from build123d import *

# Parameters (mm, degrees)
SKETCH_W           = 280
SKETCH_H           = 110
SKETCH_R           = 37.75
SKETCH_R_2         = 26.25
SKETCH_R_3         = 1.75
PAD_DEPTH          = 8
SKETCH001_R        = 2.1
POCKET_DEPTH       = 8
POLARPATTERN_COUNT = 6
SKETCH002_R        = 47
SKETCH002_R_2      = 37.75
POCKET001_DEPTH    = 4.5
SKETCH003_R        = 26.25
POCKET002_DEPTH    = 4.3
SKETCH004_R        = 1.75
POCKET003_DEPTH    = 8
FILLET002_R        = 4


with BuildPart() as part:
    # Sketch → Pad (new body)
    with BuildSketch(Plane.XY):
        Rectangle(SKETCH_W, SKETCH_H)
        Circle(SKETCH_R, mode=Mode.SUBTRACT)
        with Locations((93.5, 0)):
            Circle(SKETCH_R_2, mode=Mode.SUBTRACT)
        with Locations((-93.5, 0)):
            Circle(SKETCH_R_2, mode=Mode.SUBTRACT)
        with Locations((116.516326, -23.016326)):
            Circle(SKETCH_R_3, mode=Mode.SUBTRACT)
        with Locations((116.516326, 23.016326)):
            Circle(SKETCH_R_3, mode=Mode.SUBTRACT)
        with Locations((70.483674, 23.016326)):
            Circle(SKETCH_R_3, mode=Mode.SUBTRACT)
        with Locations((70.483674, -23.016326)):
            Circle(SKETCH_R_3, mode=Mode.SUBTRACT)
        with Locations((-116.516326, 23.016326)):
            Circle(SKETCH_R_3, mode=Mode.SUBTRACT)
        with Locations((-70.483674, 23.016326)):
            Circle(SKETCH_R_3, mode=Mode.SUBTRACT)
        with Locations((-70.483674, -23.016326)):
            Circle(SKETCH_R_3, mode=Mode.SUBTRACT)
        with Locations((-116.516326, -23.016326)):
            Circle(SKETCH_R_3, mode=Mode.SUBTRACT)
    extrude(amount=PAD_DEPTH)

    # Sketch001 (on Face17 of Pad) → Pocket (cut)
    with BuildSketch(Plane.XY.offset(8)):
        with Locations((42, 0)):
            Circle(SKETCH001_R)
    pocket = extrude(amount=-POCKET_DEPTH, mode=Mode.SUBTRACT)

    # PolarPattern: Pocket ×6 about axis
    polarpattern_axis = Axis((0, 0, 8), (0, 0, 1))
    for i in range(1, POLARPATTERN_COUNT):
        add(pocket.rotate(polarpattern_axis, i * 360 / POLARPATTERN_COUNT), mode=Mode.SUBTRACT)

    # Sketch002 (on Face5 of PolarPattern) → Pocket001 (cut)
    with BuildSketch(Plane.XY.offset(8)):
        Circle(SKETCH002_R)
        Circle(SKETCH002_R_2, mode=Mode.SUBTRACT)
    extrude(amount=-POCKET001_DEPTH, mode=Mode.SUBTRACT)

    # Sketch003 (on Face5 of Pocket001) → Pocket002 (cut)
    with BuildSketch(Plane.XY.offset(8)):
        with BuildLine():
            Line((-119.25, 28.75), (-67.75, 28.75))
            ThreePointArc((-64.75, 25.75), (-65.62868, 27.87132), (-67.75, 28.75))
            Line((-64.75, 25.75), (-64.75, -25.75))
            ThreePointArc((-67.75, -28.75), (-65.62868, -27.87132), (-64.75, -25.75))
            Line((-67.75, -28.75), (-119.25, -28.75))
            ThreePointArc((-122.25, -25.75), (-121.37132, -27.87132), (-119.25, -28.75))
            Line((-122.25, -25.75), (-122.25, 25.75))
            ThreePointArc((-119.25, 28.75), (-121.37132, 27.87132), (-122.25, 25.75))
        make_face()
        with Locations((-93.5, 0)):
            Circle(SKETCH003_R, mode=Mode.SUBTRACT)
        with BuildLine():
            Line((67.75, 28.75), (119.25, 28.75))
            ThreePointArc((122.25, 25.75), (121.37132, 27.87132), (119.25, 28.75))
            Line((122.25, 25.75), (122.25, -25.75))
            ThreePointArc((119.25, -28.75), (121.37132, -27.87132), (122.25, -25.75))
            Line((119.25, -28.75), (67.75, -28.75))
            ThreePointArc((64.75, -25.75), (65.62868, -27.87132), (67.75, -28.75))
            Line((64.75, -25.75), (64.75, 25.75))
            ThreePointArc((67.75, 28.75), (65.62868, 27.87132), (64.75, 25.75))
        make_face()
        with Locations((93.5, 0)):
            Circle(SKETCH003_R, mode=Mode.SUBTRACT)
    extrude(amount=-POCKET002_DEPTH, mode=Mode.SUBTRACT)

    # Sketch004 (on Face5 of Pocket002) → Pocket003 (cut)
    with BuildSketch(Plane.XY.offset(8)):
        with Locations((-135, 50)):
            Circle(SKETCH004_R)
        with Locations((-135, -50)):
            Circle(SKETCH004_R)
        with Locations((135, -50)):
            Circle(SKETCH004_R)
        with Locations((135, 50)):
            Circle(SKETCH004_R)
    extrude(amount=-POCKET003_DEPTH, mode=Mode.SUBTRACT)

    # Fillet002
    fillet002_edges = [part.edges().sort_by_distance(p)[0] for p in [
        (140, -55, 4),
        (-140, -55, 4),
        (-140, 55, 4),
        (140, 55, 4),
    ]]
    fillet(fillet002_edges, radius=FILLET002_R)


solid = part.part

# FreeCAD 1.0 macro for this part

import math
import FreeCAD as App
import Part
import Sketcher
from FreeCAD import Vector


def edges_at(feature, points):
    """Names of the edges that pass closest to the given points."""
    edges = feature.Shape.Edges
    near = lambda p: min(range(len(edges)), key=lambda i: edges[i].distToShape(Part.Vertex(*p))[0])
    return sorted({f"Edge{near(p) + 1}" for p in points})

doc = App.newDocument("Part")
body = doc.addObject("PartDesign::Body", "Body")

# Sketch on XY plane
sketch1 = body.newObject("Sketcher::SketchObject", "Sketch")
sketch1.AttachmentSupport = (doc.getObject("XY_Plane"), [""])
sketch1.MapMode = "FlatFace"
sketch1.addGeometry(Part.LineSegment(Vector(-140, 55, 0), Vector(-140, -55, 0)), False)
sketch1.addGeometry(Part.LineSegment(Vector(-140, -55, 0), Vector(140, -55, 0)), False)
sketch1.addGeometry(Part.LineSegment(Vector(140, -55, 0), Vector(140, 55, 0)), False)
sketch1.addGeometry(Part.LineSegment(Vector(140, 55, 0), Vector(-140, 55, 0)), False)
sketch1.addGeometry(Part.Circle(Vector(-116.5, -23, 0), Vector(0, 0, 1), 1.8), False)
sketch1.addGeometry(Part.Circle(Vector(-70.5, -23, 0), Vector(0, 0, 1), 1.8), False)
sketch1.addGeometry(Part.Circle(Vector(70.5, -23, 0), Vector(0, 0, 1), 1.8), False)
sketch1.addGeometry(Part.Circle(Vector(116.5, -23, 0), Vector(0, 0, 1), 1.8), False)
sketch1.addGeometry(Part.Circle(Vector(-93.5, 0, 0), Vector(0, 0, 1), 26.2), False)
sketch1.addGeometry(Part.Circle(Vector(0, 0, 0), Vector(0, 0, 1), 37.8), False)
sketch1.addGeometry(Part.Circle(Vector(-116.5, 23, 0), Vector(0, 0, 1), 1.8), False)
sketch1.addGeometry(Part.Circle(Vector(-70.5, 23, 0), Vector(0, 0, 1), 1.8), False)
sketch1.addGeometry(Part.Circle(Vector(93.5, 0, 0), Vector(0, 0, 1), 26.2), False)
sketch1.addGeometry(Part.Circle(Vector(70.5, 23, 0), Vector(0, 0, 1), 1.8), False)
sketch1.addGeometry(Part.Circle(Vector(116.5, 23, 0), Vector(0, 0, 1), 1.8), False)
sketch1.addConstraint(Sketcher.Constraint("Coincident", 0, 2, 1, 1))
sketch1.addConstraint(Sketcher.Constraint("Coincident", 1, 2, 2, 1))
sketch1.addConstraint(Sketcher.Constraint("Coincident", 2, 2, 3, 1))
sketch1.addConstraint(Sketcher.Constraint("Coincident", 3, 2, 0, 1))
sketch1.addConstraint(Sketcher.Constraint("Vertical", 0))
sketch1.addConstraint(Sketcher.Constraint("Horizontal", 1))
sketch1.addConstraint(Sketcher.Constraint("Vertical", 2))
sketch1.addConstraint(Sketcher.Constraint("Horizontal", 3))
sketch1.addConstraint(Sketcher.Constraint("Coincident", 9, 3, -1, 1))
sketch1.addConstraint(Sketcher.Constraint("Equal", 4, 5))
sketch1.addConstraint(Sketcher.Constraint("Equal", 5, 6))
sketch1.addConstraint(Sketcher.Constraint("Equal", 6, 7))
sketch1.addConstraint(Sketcher.Constraint("Equal", 7, 10))
sketch1.addConstraint(Sketcher.Constraint("Equal", 10, 11))
sketch1.addConstraint(Sketcher.Constraint("Equal", 8, 12))
sketch1.addConstraint(Sketcher.Constraint("Equal", 11, 13))
sketch1.addConstraint(Sketcher.Constraint("Equal", 13, 14))
sketch1.addConstraint(Sketcher.Constraint("Symmetric", 7, 3, 10, 3, -1, 1))
sketch1.addConstraint(Sketcher.Constraint("Symmetric", 6, 3, 11, 3, -1, 1))
sketch1.addConstraint(Sketcher.Constraint("Symmetric", 8, 3, 12, 3, -1, 1))
sketch1.addConstraint(Sketcher.Constraint("Symmetric", 5, 3, 13, 3, -1, 1))
sketch1.addConstraint(Sketcher.Constraint("Symmetric", 4, 3, 14, 3, -1, 1))
sketch1.addConstraint(Sketcher.Constraint("Symmetric", 0, 2, 2, 2, -1, 1))
sketch1.addConstraint(Sketcher.Constraint("Symmetric", 5, 3, 6, 3, -2))
sketch1.addConstraint(Sketcher.Constraint("Symmetric", 4, 3, 7, 3, -2))
sketch1.addConstraint(Sketcher.Constraint("PointOnObject", 8, 3, -1))
sketch1.addConstraint(Sketcher.Constraint("Horizontal", 4, 3, 5, 3))
sketch1.addConstraint(Sketcher.Constraint("Diameter", 4, 3.5))
sketch1.addConstraint(Sketcher.Constraint("Diameter", 8, 52.5))
sketch1.addConstraint(Sketcher.Constraint("Diameter", 9, 75.5))
sketch1.addConstraint(Sketcher.Constraint("DistanceX", 1, 1, 1, 2, 280.0))
sketch1.addConstraint(Sketcher.Constraint("DistanceY", 0, 2, 0, 1, 110.0))
sketch1.addConstraint(Sketcher.Constraint("DistanceX", 4, 3, 6, 3, 187.0))
sketch1.addConstraint(Sketcher.Constraint("DistanceX", 8, 3, -1, 1, 93.5))
sketch1.addConstraint(Sketcher.Constraint("DistanceX", 4, 3, -1, 1, 116.516326))
sketch1.addConstraint(Sketcher.Constraint("DistanceY", 4, 3, -1, 1, 23.016326))
pad1 = body.newObject("PartDesign::Pad", "Pad")
pad1.Profile = sketch1
pad1.Length = 8

# Sketch on XY plane
sketch2 = body.newObject("Sketcher::SketchObject", "Sketch001")
sketch2.AttachmentSupport = (doc.getObject("XY_Plane"), [""])
sketch2.MapMode = "FlatFace"
sketch2.AttachmentOffset = App.Placement(Vector(0, 0, 8), App.Rotation())
sketch2.addGeometry(Part.Circle(Vector(42, 0, 0), Vector(0, 0, 1), 2.1), False)
sketch2.addConstraint(Sketcher.Constraint("PointOnObject", 0, 3, -1))
sketch2.addConstraint(Sketcher.Constraint("Diameter", 0, 4.2))
sketch2.addConstraint(Sketcher.Constraint("DistanceX", -1, 1, 0, 3, 42.0))
pocket1 = body.newObject("PartDesign::Pocket", "Pocket")
pocket1.Profile = sketch2
pocket1.Length = 8
doc.recompute()

polarpattern = body.newObject("PartDesign::PolarPattern", "PolarPattern")
polarpattern.Originals = [pocket1]
polarpattern.Axis = (doc.getObject("Z_Axis"), [""])
polarpattern.Angle = 360
polarpattern.Occurrences = 6
body.Tip = polarpattern

# Sketch on XY plane
sketch3 = body.newObject("Sketcher::SketchObject", "Sketch002")
sketch3.AttachmentSupport = (doc.getObject("XY_Plane"), [""])
sketch3.MapMode = "FlatFace"
sketch3.AttachmentOffset = App.Placement(Vector(0, 0, 8), App.Rotation())
sketch3.addGeometry(Part.Circle(Vector(0, 0, 0), Vector(0, 0, 1), 47), False)
sketch3.addGeometry(Part.Circle(Vector(0, 0, 0), Vector(0, 0, 1), 38), False)
sketch3.addConstraint(Sketcher.Constraint("Coincident", 0, 3, -1, 1))
sketch3.addConstraint(Sketcher.Constraint("Coincident", 1, 3, -1, 1))
sketch3.addConstraint(Sketcher.Constraint("Diameter", 0, 94.0))
sketch3.addConstraint(Sketcher.Constraint("Diameter", 1, 75.5))
pocket2 = body.newObject("PartDesign::Pocket", "Pocket001")
pocket2.Profile = sketch3
pocket2.Length = 4.5

# Sketch on XY plane
sketch4 = body.newObject("Sketcher::SketchObject", "Sketch003")
sketch4.AttachmentSupport = (doc.getObject("XY_Plane"), [""])
sketch4.MapMode = "FlatFace"
sketch4.AttachmentOffset = App.Placement(Vector(0, 0, 8), App.Rotation())
sketch4.addGeometry(Part.LineSegment(Vector(-67.8, 28.8, 0), Vector(-119.2, 28.8, 0)), False)
sketch4.addGeometry(Part.ArcOfCircle(Part.Circle(Vector(-119.2, 25.7, 0), Vector(0, 0, 1), 3), math.radians(90), math.radians(180)), False)
sketch4.addGeometry(Part.LineSegment(Vector(-122.2, 25.8, 0), Vector(-122.2, -25.8, 0)), False)
sketch4.addGeometry(Part.ArcOfCircle(Part.Circle(Vector(-119.2, -25.7, 0), Vector(0, 0, 1), 3), math.radians(-180), math.radians(-90)), False)
sketch4.addGeometry(Part.LineSegment(Vector(-119.2, -28.8, 0), Vector(-67.8, -28.8, 0)), False)
sketch4.addGeometry(Part.ArcOfCircle(Part.Circle(Vector(-67.8, -25.7, 0), Vector(0, 0, 1), 3), math.radians(-90), math.radians(0)), False)
sketch4.addGeometry(Part.LineSegment(Vector(-64.8, -25.8, 0), Vector(-64.8, 25.8, 0)), False)
sketch4.addGeometry(Part.ArcOfCircle(Part.Circle(Vector(-67.8, 25.7, 0), Vector(0, 0, 1), 3), math.radians(0), math.radians(90)), False)
sketch4.addGeometry(Part.Circle(Vector(-93.5, 0, 0), Vector(0, 0, 1), 26.2), False)
sketch4.addGeometry(Part.LineSegment(Vector(119.2, 28.8, 0), Vector(67.8, 28.8, 0)), False)
sketch4.addGeometry(Part.ArcOfCircle(Part.Circle(Vector(67.8, 25.7, 0), Vector(0, 0, 1), 3), math.radians(90), math.radians(180)), False)
sketch4.addGeometry(Part.LineSegment(Vector(64.8, 25.8, 0), Vector(64.8, -25.8, 0)), False)
sketch4.addGeometry(Part.ArcOfCircle(Part.Circle(Vector(67.8, -25.7, 0), Vector(0, 0, 1), 3), math.radians(-180), math.radians(-90)), False)
sketch4.addGeometry(Part.LineSegment(Vector(67.8, -28.8, 0), Vector(119.2, -28.8, 0)), False)
sketch4.addGeometry(Part.ArcOfCircle(Part.Circle(Vector(119.2, -25.7, 0), Vector(0, 0, 1), 3), math.radians(-90), math.radians(0)), False)
sketch4.addGeometry(Part.LineSegment(Vector(122.2, -25.8, 0), Vector(122.2, 25.8, 0)), False)
sketch4.addGeometry(Part.ArcOfCircle(Part.Circle(Vector(119.2, 25.7, 0), Vector(0, 0, 1), 3), math.radians(0), math.radians(90)), False)
sketch4.addGeometry(Part.Circle(Vector(93.5, 0, 0), Vector(0, 0, 1), 26.2), False)
sketch4.addConstraint(Sketcher.Constraint("Tangent", 0, 2, 1, 1))
sketch4.addConstraint(Sketcher.Constraint("Tangent", 1, 2, 2, 1))
sketch4.addConstraint(Sketcher.Constraint("Tangent", 2, 2, 3, 1))
sketch4.addConstraint(Sketcher.Constraint("Tangent", 3, 2, 4, 1))
sketch4.addConstraint(Sketcher.Constraint("Tangent", 4, 2, 5, 1))
sketch4.addConstraint(Sketcher.Constraint("Tangent", 5, 2, 6, 1))
sketch4.addConstraint(Sketcher.Constraint("Tangent", 6, 2, 7, 1))
sketch4.addConstraint(Sketcher.Constraint("Tangent", 7, 2, 0, 1))
sketch4.addConstraint(Sketcher.Constraint("Tangent", 9, 2, 10, 1))
sketch4.addConstraint(Sketcher.Constraint("Tangent", 10, 2, 11, 1))
sketch4.addConstraint(Sketcher.Constraint("Tangent", 11, 2, 12, 1))
sketch4.addConstraint(Sketcher.Constraint("Tangent", 12, 2, 13, 1))
sketch4.addConstraint(Sketcher.Constraint("Tangent", 13, 2, 14, 1))
sketch4.addConstraint(Sketcher.Constraint("Tangent", 14, 2, 15, 1))
sketch4.addConstraint(Sketcher.Constraint("Tangent", 15, 2, 16, 1))
sketch4.addConstraint(Sketcher.Constraint("Tangent", 16, 2, 9, 1))
sketch4.addConstraint(Sketcher.Constraint("Horizontal", 0))
sketch4.addConstraint(Sketcher.Constraint("Vertical", 2))
sketch4.addConstraint(Sketcher.Constraint("Horizontal", 4))
sketch4.addConstraint(Sketcher.Constraint("Vertical", 6))
sketch4.addConstraint(Sketcher.Constraint("Horizontal", 9))
sketch4.addConstraint(Sketcher.Constraint("Vertical", 11))
sketch4.addConstraint(Sketcher.Constraint("Horizontal", 13))
sketch4.addConstraint(Sketcher.Constraint("Vertical", 15))
sketch4.addConstraint(Sketcher.Constraint("Equal", 1, 3))
sketch4.addConstraint(Sketcher.Constraint("Equal", 3, 5))
sketch4.addConstraint(Sketcher.Constraint("Equal", 5, 7))
sketch4.addConstraint(Sketcher.Constraint("Equal", 7, 10))
sketch4.addConstraint(Sketcher.Constraint("Equal", 10, 12))
sketch4.addConstraint(Sketcher.Constraint("Equal", 12, 14))
sketch4.addConstraint(Sketcher.Constraint("Equal", 14, 16))
sketch4.addConstraint(Sketcher.Constraint("Equal", 8, 17))
sketch4.addConstraint(Sketcher.Constraint("Symmetric", 5, 3, 10, 3, -1, 1))
sketch4.addConstraint(Sketcher.Constraint("Symmetric", 1, 3, 14, 3, -1, 1))
sketch4.addConstraint(Sketcher.Constraint("Symmetric", 8, 3, 17, 3, -1, 1))
sketch4.addConstraint(Sketcher.Constraint("PointOnObject", 8, 3, -1))
sketch4.addConstraint(Sketcher.Constraint("Horizontal", 7, 3, 10, 3))
sketch4.addConstraint(Sketcher.Constraint("Equal", 13, 2))
sketch4.addConstraint(Sketcher.Constraint("Radius", 1, 3.000001))
sketch4.addConstraint(Sketcher.Constraint("Diameter", 8, 52.5))
sketch4.addConstraint(Sketcher.Constraint("DistanceX", 0, 2, 0, 1, 51.5))
sketch4.addConstraint(Sketcher.Constraint("DistanceX", 1, 3, 10, 3, 187.0))
sketch4.addConstraint(Sketcher.Constraint("DistanceX", 8, 3, -1, 1, 93.5))
pocket3 = body.newObject("PartDesign::Pocket", "Pocket002")
pocket3.Profile = sketch4
pocket3.Length = 4.3

# Sketch on XY plane
sketch5 = body.newObject("Sketcher::SketchObject", "Sketch004")
sketch5.AttachmentSupport = (doc.getObject("XY_Plane"), [""])
sketch5.MapMode = "FlatFace"
sketch5.AttachmentOffset = App.Placement(Vector(0, 0, 8), App.Rotation())
sketch5.addGeometry(Part.Circle(Vector(-135, 50, 0), Vector(0, 0, 1), 1.8), False)
sketch5.addGeometry(Part.Circle(Vector(-135, -50, 0), Vector(0, 0, 1), 1.8), False)
sketch5.addGeometry(Part.Circle(Vector(135, -50, 0), Vector(0, 0, 1), 1.8), False)
sketch5.addGeometry(Part.Circle(Vector(135, 50, 0), Vector(0, 0, 1), 1.8), False)
sketch5.addConstraint(Sketcher.Constraint("Equal", 0, 1))
sketch5.addConstraint(Sketcher.Constraint("Equal", 1, 2))
sketch5.addConstraint(Sketcher.Constraint("Equal", 2, 3))
sketch5.addConstraint(Sketcher.Constraint("Symmetric", 0, 3, 2, 3, -1, 1))
sketch5.addConstraint(Sketcher.Constraint("Symmetric", 1, 3, 3, 3, -1, 1))
sketch5.addConstraint(Sketcher.Constraint("Symmetric", 1, 3, 2, 3, -2))
sketch5.addConstraint(Sketcher.Constraint("Diameter", 0, 3.5))
sketch5.addConstraint(Sketcher.Constraint("DistanceX", 0, 3, -1, 1, 135.0))
sketch5.addConstraint(Sketcher.Constraint("DistanceY", -1, 1, 0, 3, 50.0))
pocket4 = body.newObject("PartDesign::Pocket", "Pocket003")
pocket4.Profile = sketch5
pocket4.Length = 8
doc.recompute()

fillet = body.newObject("PartDesign::Fillet", "Fillet")
fillet.Base = (pocket4, edges_at(pocket4, [
    (140, -55, 4),
    (-140, -55, 4),
    (-140, 55, 4),
    (140, 55, 4),
]))
fillet.Radius = 4

doc.recompute()
